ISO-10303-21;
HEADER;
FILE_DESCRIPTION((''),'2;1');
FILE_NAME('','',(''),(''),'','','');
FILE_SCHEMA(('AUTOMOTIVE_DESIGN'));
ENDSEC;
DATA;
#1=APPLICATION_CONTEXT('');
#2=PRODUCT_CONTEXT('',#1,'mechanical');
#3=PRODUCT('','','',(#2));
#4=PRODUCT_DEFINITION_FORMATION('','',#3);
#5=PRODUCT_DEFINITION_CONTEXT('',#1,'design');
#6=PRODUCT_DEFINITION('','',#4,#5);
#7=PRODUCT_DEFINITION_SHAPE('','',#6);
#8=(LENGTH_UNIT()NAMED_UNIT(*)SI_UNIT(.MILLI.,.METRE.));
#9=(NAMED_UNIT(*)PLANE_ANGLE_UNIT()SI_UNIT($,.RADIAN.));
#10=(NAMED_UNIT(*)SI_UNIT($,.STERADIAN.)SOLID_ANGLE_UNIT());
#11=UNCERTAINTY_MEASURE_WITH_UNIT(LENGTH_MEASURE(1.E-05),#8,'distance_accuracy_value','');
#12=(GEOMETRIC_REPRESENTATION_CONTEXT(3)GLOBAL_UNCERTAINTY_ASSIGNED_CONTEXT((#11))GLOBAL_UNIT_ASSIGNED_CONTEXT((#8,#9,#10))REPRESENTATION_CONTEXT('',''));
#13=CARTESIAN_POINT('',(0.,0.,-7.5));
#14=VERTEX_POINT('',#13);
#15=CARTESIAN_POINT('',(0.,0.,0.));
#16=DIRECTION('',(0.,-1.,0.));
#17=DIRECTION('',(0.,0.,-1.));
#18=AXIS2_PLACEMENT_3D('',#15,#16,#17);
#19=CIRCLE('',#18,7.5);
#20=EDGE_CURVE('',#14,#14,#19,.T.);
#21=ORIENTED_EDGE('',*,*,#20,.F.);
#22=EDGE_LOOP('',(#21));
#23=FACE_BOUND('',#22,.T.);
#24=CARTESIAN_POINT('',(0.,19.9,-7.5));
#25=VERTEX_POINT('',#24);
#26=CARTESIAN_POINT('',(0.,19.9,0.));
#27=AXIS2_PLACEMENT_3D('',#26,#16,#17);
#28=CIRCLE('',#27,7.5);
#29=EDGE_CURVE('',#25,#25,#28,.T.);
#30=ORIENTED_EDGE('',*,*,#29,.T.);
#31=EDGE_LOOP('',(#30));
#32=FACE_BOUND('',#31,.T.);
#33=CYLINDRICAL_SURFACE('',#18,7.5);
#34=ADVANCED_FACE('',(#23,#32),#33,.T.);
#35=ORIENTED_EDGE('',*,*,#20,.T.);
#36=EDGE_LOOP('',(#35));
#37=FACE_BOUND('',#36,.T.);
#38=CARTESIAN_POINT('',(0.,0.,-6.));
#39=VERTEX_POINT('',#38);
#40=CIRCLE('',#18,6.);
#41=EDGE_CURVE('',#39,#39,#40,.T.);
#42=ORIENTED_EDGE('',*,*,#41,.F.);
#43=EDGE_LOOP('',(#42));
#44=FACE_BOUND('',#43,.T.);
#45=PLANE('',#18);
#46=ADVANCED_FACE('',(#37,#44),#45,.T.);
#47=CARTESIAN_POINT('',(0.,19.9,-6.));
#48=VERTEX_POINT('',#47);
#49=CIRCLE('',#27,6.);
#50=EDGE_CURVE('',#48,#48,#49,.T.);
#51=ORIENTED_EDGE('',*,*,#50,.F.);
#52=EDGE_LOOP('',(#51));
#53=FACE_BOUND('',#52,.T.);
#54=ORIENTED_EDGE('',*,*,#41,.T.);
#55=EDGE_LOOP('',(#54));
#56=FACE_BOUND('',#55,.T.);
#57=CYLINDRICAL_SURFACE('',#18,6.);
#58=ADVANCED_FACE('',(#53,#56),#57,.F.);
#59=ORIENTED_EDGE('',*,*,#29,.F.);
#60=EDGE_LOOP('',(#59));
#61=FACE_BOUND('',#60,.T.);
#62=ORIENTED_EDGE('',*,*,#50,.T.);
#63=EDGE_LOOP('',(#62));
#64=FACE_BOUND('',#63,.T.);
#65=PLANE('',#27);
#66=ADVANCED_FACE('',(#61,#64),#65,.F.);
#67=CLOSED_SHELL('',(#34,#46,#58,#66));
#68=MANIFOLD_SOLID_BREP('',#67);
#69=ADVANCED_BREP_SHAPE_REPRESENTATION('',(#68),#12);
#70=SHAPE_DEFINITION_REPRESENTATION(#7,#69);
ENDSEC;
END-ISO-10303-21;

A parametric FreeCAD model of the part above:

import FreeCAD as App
import Part
import Sketcher

V = App.Vector
Q = App.Units.Quantity

doc = App.newDocument("Part")
params = doc.addObject("Spreadsheet::Sheet", "Params")
for row, (alias, value) in enumerate([
    ("sketch1_width", "1.5 mm"),
    ("sketch1_height", "19.9 mm"),
    ("revolution_angle", "360 deg"),
], start=1):
    params.set(f"A{row}", alias)
    params.set(f"B{row}", "=" + value)
    params.setAlias(f"B{row}", alias)

body = doc.addObject("PartDesign::Body", "Body")

sketch1 = body.newObject("Sketcher::SketchObject", "Sketch")
sketch1.AttachmentSupport = (doc.getObject("XY_Plane"), [""])
sketch1.MapMode = "FlatFace"
sketch1.addGeometry([
    Part.LineSegment(V(6, 19.9, 0), V(6, 0, 0)),
    Part.LineSegment(V(6, 0, 0), V(7.5, 0, 0)),
    Part.LineSegment(V(7.5, 0, 0), V(7.5, 19.9, 0)),
    Part.LineSegment(V(7.5, 19.9, 0), V(6, 19.9, 0)),
], False)
sketch1.addConstraint([
    Sketcher.Constraint("Coincident", 0, 2, 1, 1),
    Sketcher.Constraint("Coincident", 1, 2, 2, 1),
    Sketcher.Constraint("Coincident", 2, 2, 3, 1),
    Sketcher.Constraint("Coincident", 3, 2, 0, 1),
    Sketcher.Constraint("Vertical", 0),
    Sketcher.Constraint("Horizontal", 1),
    Sketcher.Constraint("Vertical", 2),
    Sketcher.Constraint("Horizontal", 3),
    Sketcher.Constraint("PointOnObject", 0, 2, -1),
    Sketcher.Constraint("DistanceX", 1, 1, 1, 2, Q("1.5 mm")),
    Sketcher.Constraint("DistanceY", 0, 2, 0, 1, Q("19.9 mm")),
    Sketcher.Constraint("DistanceX", -1, 1, 0, 2, Q("6 mm")),
])
sketch1.setExpression("Constraints[9]", "Params.sketch1_width")
sketch1.setExpression("Constraints[10]", "Params.sketch1_height")
revolution = body.newObject("PartDesign::Revolution", "Revolution")
revolution.Profile = sketch1
revolution.ReferenceAxis = (sketch1, ["V_Axis"])
revolution.setExpression("Angle", "Params.revolution_angle")

doc.recompute()
